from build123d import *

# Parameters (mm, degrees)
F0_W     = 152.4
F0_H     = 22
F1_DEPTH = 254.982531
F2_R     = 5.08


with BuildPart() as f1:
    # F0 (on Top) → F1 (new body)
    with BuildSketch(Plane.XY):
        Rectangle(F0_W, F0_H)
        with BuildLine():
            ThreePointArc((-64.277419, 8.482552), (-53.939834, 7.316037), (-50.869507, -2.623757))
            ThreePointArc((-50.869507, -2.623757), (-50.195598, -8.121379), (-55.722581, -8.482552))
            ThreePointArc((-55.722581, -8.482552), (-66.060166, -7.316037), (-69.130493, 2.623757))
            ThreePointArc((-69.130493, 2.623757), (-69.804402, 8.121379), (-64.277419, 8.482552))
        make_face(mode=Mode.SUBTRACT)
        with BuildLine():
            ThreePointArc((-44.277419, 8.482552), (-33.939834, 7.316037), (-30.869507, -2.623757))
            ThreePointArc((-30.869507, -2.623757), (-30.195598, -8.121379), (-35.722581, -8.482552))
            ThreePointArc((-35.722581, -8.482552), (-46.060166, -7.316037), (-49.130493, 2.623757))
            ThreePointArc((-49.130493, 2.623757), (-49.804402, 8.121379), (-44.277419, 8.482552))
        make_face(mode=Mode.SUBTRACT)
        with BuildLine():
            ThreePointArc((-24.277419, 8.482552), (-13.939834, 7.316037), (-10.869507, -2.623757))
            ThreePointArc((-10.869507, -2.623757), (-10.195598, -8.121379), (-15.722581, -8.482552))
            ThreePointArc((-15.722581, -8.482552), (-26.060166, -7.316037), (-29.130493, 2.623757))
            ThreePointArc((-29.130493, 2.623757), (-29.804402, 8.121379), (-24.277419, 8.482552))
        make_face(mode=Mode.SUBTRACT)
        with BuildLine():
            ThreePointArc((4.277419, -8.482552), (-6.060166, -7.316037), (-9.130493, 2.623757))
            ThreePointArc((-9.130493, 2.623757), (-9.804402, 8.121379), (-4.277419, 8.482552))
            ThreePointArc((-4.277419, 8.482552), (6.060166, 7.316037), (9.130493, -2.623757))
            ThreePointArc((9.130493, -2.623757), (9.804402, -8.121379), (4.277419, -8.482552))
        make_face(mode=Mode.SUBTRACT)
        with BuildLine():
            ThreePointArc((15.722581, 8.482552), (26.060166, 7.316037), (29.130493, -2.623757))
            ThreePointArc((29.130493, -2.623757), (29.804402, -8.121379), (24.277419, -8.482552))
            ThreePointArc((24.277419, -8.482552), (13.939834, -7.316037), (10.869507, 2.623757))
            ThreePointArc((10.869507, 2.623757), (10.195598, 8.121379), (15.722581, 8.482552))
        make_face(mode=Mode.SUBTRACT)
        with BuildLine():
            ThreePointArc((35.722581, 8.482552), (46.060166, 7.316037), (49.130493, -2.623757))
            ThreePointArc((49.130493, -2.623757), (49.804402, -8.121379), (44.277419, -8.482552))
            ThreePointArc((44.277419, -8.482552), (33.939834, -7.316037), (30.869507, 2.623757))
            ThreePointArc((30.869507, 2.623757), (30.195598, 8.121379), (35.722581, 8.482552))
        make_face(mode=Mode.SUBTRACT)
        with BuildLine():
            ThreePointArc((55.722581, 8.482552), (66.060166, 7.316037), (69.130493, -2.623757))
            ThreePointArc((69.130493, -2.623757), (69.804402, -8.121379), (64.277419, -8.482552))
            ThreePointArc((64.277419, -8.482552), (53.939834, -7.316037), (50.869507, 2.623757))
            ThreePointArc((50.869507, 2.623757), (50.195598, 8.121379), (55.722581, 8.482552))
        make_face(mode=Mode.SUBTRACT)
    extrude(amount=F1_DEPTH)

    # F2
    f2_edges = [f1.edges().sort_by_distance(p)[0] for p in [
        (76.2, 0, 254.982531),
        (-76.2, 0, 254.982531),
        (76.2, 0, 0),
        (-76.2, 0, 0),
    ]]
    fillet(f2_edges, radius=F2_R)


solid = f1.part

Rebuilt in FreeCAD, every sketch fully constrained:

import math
import FreeCAD as App
import Part
import Sketcher
from FreeCAD import Vector
Q = App.Units.Quantity


def edges_at(feature, points):
    """Names of the edges that pass closest to the given points."""
    edges = feature.Shape.Edges
    near = lambda p: min(range(len(edges)), key=lambda i: edges[i].distToShape(Part.Vertex(*p))[0])
    return sorted({f"Edge{near(p) + 1}" for p in points})

doc = App.newDocument("Part")
body = doc.addObject("PartDesign::Body", "Body")

sketch1 = body.newObject("Sketcher::SketchObject", "Sketch")
sketch1.AttachmentSupport = (doc.getObject("XY_Plane"), [""])
sketch1.MapMode = "FlatFace"
sketch1.addGeometry([
    Part.LineSegment(Vector(-76.2, 11, 0), Vector(-76.2, -11, 0)),
    Part.LineSegment(Vector(-76.2, -11, 0), Vector(76.2, -11, 0)),
    Part.LineSegment(Vector(76.2, -11, 0), Vector(76.2, 11, 0)),
    Part.LineSegment(Vector(76.2, 11, 0), Vector(-76.2, 11, 0)),
    Part.ArcOfCircle(Part.Circle(Vector(33.1, 5.7, 0), Vector(0, 0, 1), 3.8), math.radians(47), math.radians(234)),
    Part.ArcOfCircle(Part.Circle(Vector(40, 0, 0), Vector(0, 0, 1), 9.5), math.radians(-16), math.radians(117)),
    Part.ArcOfCircle(Part.Circle(Vector(46.9, -5.7, 0), Vector(0, 0, 1), 3.8), math.radians(-133), math.radians(54)),
    Part.ArcOfCircle(Part.Circle(Vector(40, 0, 0), Vector(0, 0, 1), 9.5), math.radians(164), math.radians(297)),
    Part.ArcOfCircle(Part.Circle(Vector(-66.9, 5.7, 0), Vector(0, 0, 1), 3.8), math.radians(47), math.radians(234)),
    Part.ArcOfCircle(Part.Circle(Vector(-60, 0, 0), Vector(0, 0, 1), 9.5), math.radians(-16), math.radians(117)),
    Part.ArcOfCircle(Part.Circle(Vector(-53.1, -5.7, 0), Vector(0, 0, 1), 3.8), math.radians(-133), math.radians(54)),
    Part.ArcOfCircle(Part.Circle(Vector(-60, 0, 0), Vector(0, 0, 1), 9.5), math.radians(164), math.radians(297)),
    Part.ArcOfCircle(Part.Circle(Vector(-46.9, 5.7, 0), Vector(0, 0, 1), 3.8), math.radians(47), math.radians(234)),
    Part.ArcOfCircle(Part.Circle(Vector(-40, 0, 0), Vector(0, 0, 1), 9.5), math.radians(-16), math.radians(117)),
    Part.ArcOfCircle(Part.Circle(Vector(-33.1, -5.7, 0), Vector(0, 0, 1), 3.8), math.radians(-133), math.radians(54)),
    Part.ArcOfCircle(Part.Circle(Vector(-40, 0, 0), Vector(0, 0, 1), 9.5), math.radians(164), math.radians(297)),
    Part.ArcOfCircle(Part.Circle(Vector(-26.9, 5.7, 0), Vector(0, 0, 1), 3.8), math.radians(47), math.radians(234)),
    Part.ArcOfCircle(Part.Circle(Vector(-20, 0, 0), Vector(0, 0, 1), 9.5), math.radians(-16), math.radians(117)),
    Part.ArcOfCircle(Part.Circle(Vector(-13.1, -5.7, 0), Vector(0, 0, 1), 3.8), math.radians(-133), math.radians(54)),
    Part.ArcOfCircle(Part.Circle(Vector(-20, 0, 0), Vector(0, 0, 1), 9.5), math.radians(164), math.radians(297)),
    Part.ArcOfCircle(Part.Circle(Vector(6.9, -5.7, 0), Vector(0, 0, 1), 3.8), math.radians(-133), math.radians(54)),
    Part.ArcOfCircle(Part.Circle(Vector(0, 0, 0), Vector(0, 0, 1), 9.5), math.radians(164), math.radians(297)),
    Part.ArcOfCircle(Part.Circle(Vector(-6.9, 5.7, 0), Vector(0, 0, 1), 3.8), math.radians(47), math.radians(234)),
    Part.ArcOfCircle(Part.Circle(Vector(0, 0, 0), Vector(0, 0, 1), 9.5), math.radians(-16), math.radians(117)),
    Part.ArcOfCircle(Part.Circle(Vector(13.1, 5.7, 0), Vector(0, 0, 1), 3.8), math.radians(47), math.radians(234)),
    Part.ArcOfCircle(Part.Circle(Vector(20, 0, 0), Vector(0, 0, 1), 9.5), math.radians(-16), math.radians(117)),
    Part.ArcOfCircle(Part.Circle(Vector(26.9, -5.7, 0), Vector(0, 0, 1), 3.8), math.radians(-133), math.radians(54)),
    Part.ArcOfCircle(Part.Circle(Vector(20, 0, 0), Vector(0, 0, 1), 9.5), math.radians(164), math.radians(297)),
    Part.ArcOfCircle(Part.Circle(Vector(53.1, 5.7, 0), Vector(0, 0, 1), 3.8), math.radians(47), math.radians(234)),
    Part.ArcOfCircle(Part.Circle(Vector(60, 0, 0), Vector(0, 0, 1), 9.5), math.radians(-16), math.radians(117)),
    Part.ArcOfCircle(Part.Circle(Vector(66.9, -5.7, 0), Vector(0, 0, 1), 3.8), math.radians(-133), math.radians(54)),
    Part.ArcOfCircle(Part.Circle(Vector(60, 0, 0), Vector(0, 0, 1), 9.5), math.radians(164), math.radians(297)),
], False)
sketch1.addConstraint([
    Sketcher.Constraint("Coincident", 0, 2, 1, 1),
    Sketcher.Constraint("Coincident", 1, 2, 2, 1),
    Sketcher.Constraint("Coincident", 2, 2, 3, 1),
    Sketcher.Constraint("Coincident", 3, 2, 0, 1),
    Sketcher.Constraint("Coincident", 4, 1, 5, 2),
    Sketcher.Constraint("Coincident", 5, 1, 6, 2),
    Sketcher.Constraint("Coincident", 6, 1, 7, 2),
    Sketcher.Constraint("Coincident", 7, 1, 4, 2),
    Sketcher.Constraint("Coincident", 8, 1, 9, 2),
    Sketcher.Constraint("Coincident", 9, 1, 10, 2),
    Sketcher.Constraint("Coincident", 10, 1, 11, 2),
    Sketcher.Constraint("Coincident", 11, 1, 8, 2),
    Sketcher.Constraint("Coincident", 12, 1, 13, 2),
    Sketcher.Constraint("Coincident", 13, 1, 14, 2),
    Sketcher.Constraint("Coincident", 14, 1, 15, 2),
    Sketcher.Constraint("Coincident", 15, 1, 12, 2),
    Sketcher.Constraint("Coincident", 16, 1, 17, 2),
    Sketcher.Constraint("Coincident", 17, 1, 18, 2),
    Sketcher.Constraint("Coincident", 18, 1, 19, 2),
    Sketcher.Constraint("Coincident", 19, 1, 16, 2),
    Sketcher.Constraint("Coincident", 20, 1, 21, 2),
    Sketcher.Constraint("Coincident", 21, 1, 22, 2),
    Sketcher.Constraint("Coincident", 22, 1, 23, 2),
    Sketcher.Constraint("Coincident", 23, 1, 20, 2),
    Sketcher.Constraint("Coincident", 24, 1, 25, 2),
    Sketcher.Constraint("Coincident", 25, 1, 26, 2),
    Sketcher.Constraint("Coincident", 26, 1, 27, 2),
    Sketcher.Constraint("Coincident", 27, 1, 24, 2),
    Sketcher.Constraint("Coincident", 28, 1, 29, 2),
    Sketcher.Constraint("Coincident", 29, 1, 30, 2),
    Sketcher.Constraint("Coincident", 30, 1, 31, 2),
    Sketcher.Constraint("Coincident", 31, 1, 28, 2),
    Sketcher.Constraint("Vertical", 0),
    Sketcher.Constraint("Horizontal", 1),
    Sketcher.Constraint("Vertical", 2),
    Sketcher.Constraint("Horizontal", 3),
    Sketcher.Constraint("Coincident", 21, 3, -1, 1),
    Sketcher.Constraint("Coincident", 23, 3, -1, 1),
    Sketcher.Constraint("Coincident", 7, 3, 5, 3),
    Sketcher.Constraint("Coincident", 11, 3, 9, 3),
    Sketcher.Constraint("Coincident", 15, 3, 13, 3),
    Sketcher.Constraint("Coincident", 19, 3, 17, 3),
    Sketcher.Constraint("Coincident", 27, 3, 25, 3),
    Sketcher.Constraint("Coincident", 31, 3, 29, 3),
    Sketcher.Constraint("Equal", 4, 6),
    Sketcher.Constraint("Equal", 5, 7),
    Sketcher.Constraint("Equal", 6, 8),
    Sketcher.Constraint("Equal", 7, 9),
    Sketcher.Constraint("Equal", 8, 10),
    Sketcher.Constraint("Equal", 9, 11),
    Sketcher.Constraint("Equal", 10, 12),
    Sketcher.Constraint("Equal", 11, 13),
    Sketcher.Constraint("Equal", 12, 14),
    Sketcher.Constraint("Equal", 13, 15),
    Sketcher.Constraint("Equal", 14, 16),
    Sketcher.Constraint("Equal", 15, 17),
    Sketcher.Constraint("Equal", 16, 18),
    Sketcher.Constraint("Equal", 17, 19),
    Sketcher.Constraint("Equal", 18, 20),
    Sketcher.Constraint("Equal", 19, 21),
    Sketcher.Constraint("Equal", 20, 22),
    Sketcher.Constraint("Equal", 21, 23),
    Sketcher.Constraint("Equal", 22, 24),
    Sketcher.Constraint("Equal", 23, 25),
    Sketcher.Constraint("Equal", 24, 26),
    Sketcher.Constraint("Equal", 25, 27),
    Sketcher.Constraint("Equal", 26, 28),
    Sketcher.Constraint("Equal", 27, 29),
    Sketcher.Constraint("Equal", 28, 30),
    Sketcher.Constraint("Equal", 29, 31),
    Sketcher.Constraint("Symmetric", 6, 3, 12, 3, -1, 1),
    Sketcher.Constraint("Symmetric", 5, 3, 13, 3, -1, 1),
    Sketcher.Constraint("Symmetric", 4, 3, 14, 3, -1, 1),
    Sketcher.Constraint("Symmetric", 20, 3, 22, 3, -1, 1),
    Sketcher.Constraint("Symmetric", 18, 3, 24, 3, -1, 1),
    Sketcher.Constraint("Symmetric", 17, 3, 25, 3, -1, 1),
    Sketcher.Constraint("Symmetric", 16, 3, 26, 3, -1, 1),
    Sketcher.Constraint("Symmetric", 10, 3, 28, 3, -1, 1),
    Sketcher.Constraint("Symmetric", 9, 3, 29, 3, -1, 1),
    Sketcher.Constraint("Symmetric", 8, 3, 30, 3, -1, 1),
    Sketcher.Constraint("Symmetric", 0, 2, 2, 2, -1, 1),
    Sketcher.Constraint("PointOnObject", 5, 3, -1),
    Sketcher.Constraint("PointOnObject", 9, 3, -1),
    Sketcher.Constraint("PointOnObject", 17, 3, -1),
    Sketcher.Constraint("Horizontal", 4, 3, 8, 3),
    Sketcher.Constraint("Horizontal", 6, 3, 10, 3),
    Sketcher.Constraint("Horizontal", 8, 3, 12, 3),
    Sketcher.Constraint("Horizontal", 12, 3, 16, 3),
    Sketcher.Constraint("Horizontal", 14, 3, 18, 3),
    Sketcher.Constraint("Horizontal", 18, 3, 20, 3),
    Sketcher.Constraint("Horizontal", 4, 1, 8, 1),
    Sketcher.Constraint("Horizontal", 5, 1, 9, 1),
    Sketcher.Constraint("Horizontal", 8, 1, 12, 1),
    Sketcher.Constraint("Horizontal", 12, 1, 16, 1),
    Sketcher.Constraint("Horizontal", 13, 1, 17, 1),
    Sketcher.Constraint("Horizontal", 18, 1, 20, 1),
    Sketcher.Constraint("DistanceX", 1, 1, 1, 2, Q("6 in")),
    Sketcher.Constraint("Radius", 4, Q("0.15 in")),
    Sketcher.Constraint("Radius", 5, 9.5),
    Sketcher.Constraint("DistanceY", 0, 2, 0, 1, 22.0),
    Sketcher.Constraint("DistanceX", -1, 1, 5, 3, 40.0),
    Sketcher.Constraint("DistanceX", 9, 3, -1, 1, 60.0),
    Sketcher.Constraint("DistanceX", 17, 3, -1, 1, 20.0),
    Sketcher.Constraint("DistanceX", -1, 1, 4, 1, 35.722581),
    Sketcher.Constraint("DistanceY", 4, 3, 4, 1, 2.791619),
])
pad1 = body.newObject("PartDesign::Pad", "Pad")
pad1.Profile = sketch1
pad1.Length = 254.982531
doc.recompute()

fillet = body.newObject("PartDesign::Fillet", "Fillet")
fillet.Base = (pad1, edges_at(pad1, [
    (76.2, 0, 254.983),
    (-76.2, 0, 254.983),
    (76.2, 0, 0),
    (-76.2, 0, 0),
]))
fillet.Radius = Q("0.2 in")

doc.recompute()
